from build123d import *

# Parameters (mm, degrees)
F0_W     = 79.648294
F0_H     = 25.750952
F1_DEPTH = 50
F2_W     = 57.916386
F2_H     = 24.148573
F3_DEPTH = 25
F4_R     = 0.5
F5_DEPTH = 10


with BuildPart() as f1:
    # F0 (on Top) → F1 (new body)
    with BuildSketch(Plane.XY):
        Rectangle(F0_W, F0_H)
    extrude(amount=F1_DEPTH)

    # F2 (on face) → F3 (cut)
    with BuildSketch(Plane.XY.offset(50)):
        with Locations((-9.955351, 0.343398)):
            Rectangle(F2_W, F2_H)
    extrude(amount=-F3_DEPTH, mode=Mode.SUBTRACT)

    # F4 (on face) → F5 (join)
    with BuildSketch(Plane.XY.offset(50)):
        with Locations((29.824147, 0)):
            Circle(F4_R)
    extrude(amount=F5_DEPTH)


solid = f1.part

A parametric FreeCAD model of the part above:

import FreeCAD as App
import Part
import Sketcher
from FreeCAD import Vector


def add_polygon(sketch, points):
    """Adds a closed chain of lines whose ends are joined by coincident constraints."""
    first, n = sketch.GeometryCount, len(points)
    for a, b in zip(points, points[1:] + points[:1]):
        sketch.addGeometry(Part.LineSegment(App.Vector(*a, 0), App.Vector(*b, 0)), False)
    for i in range(n):
        sketch.addConstraint(Sketcher.Constraint("Coincident", first + i, 2, first + (i + 1) % n, 1))

doc = App.newDocument("Part")
body = doc.addObject("PartDesign::Body", "Body")

# Sketch on XY plane
sketch1 = body.newObject("Sketcher::SketchObject", "Sketch")
sketch1.AttachmentSupport = (doc.getObject("XY_Plane"), [""])
sketch1.MapMode = "FlatFace"
add_polygon(sketch1, [(-39.824147, 12.875476), (-39.824147, -12.875476), (39.824147, -12.875476), (39.824147, 12.875476)])  # lines 0-3
sketch1.addConstraint(Sketcher.Constraint("Vertical", 0))
sketch1.addConstraint(Sketcher.Constraint("Horizontal", 1))
sketch1.addConstraint(Sketcher.Constraint("Vertical", 2))
sketch1.addConstraint(Sketcher.Constraint("Horizontal", 3))
sketch1.addConstraint(Sketcher.Constraint("Symmetric", 0, 2, 2, 2, -1, 1))
sketch1.addConstraint(Sketcher.Constraint("DistanceX", 1, 1, 1, 2, 79.648294))
sketch1.addConstraint(Sketcher.Constraint("DistanceY", 0, 2, 0, 1, 25.750952))
pad1 = body.newObject("PartDesign::Pad", "Pad")
pad1.Profile = sketch1
pad1.Length = 50

# Sketch on XY plane
sketch2 = body.newObject("Sketcher::SketchObject", "Sketch001")
sketch2.AttachmentSupport = (doc.getObject("XY_Plane"), [""])
sketch2.MapMode = "FlatFace"
sketch2.AttachmentOffset = App.Placement(Vector(0, 0, 50), App.Rotation())
add_polygon(sketch2, [(-38.913544, 12.417685), (-38.913544, -11.730889), (19.002842, -11.730889), (19.002842, 12.417685)])  # lines 0-3
sketch2.addConstraint(Sketcher.Constraint("Vertical", 0))
sketch2.addConstraint(Sketcher.Constraint("Horizontal", 1))
sketch2.addConstraint(Sketcher.Constraint("Vertical", 2))
sketch2.addConstraint(Sketcher.Constraint("Horizontal", 3))
sketch2.addConstraint(Sketcher.Constraint("DistanceX", 1, 1, 1, 2, 57.916386))
sketch2.addConstraint(Sketcher.Constraint("DistanceY", 0, 2, 0, 1, 24.148573))
sketch2.addConstraint(Sketcher.Constraint("DistanceY", 0, 2, -1, 1, 11.730889))
sketch2.addConstraint(Sketcher.Constraint("DistanceX", 0, 2, -1, 1, 38.913544))
pocket1 = body.newObject("PartDesign::Pocket", "Pocket")
pocket1.Profile = sketch2
pocket1.Length = 25

# Sketch on XY plane
sketch3 = body.newObject("Sketcher::SketchObject", "Sketch002")
sketch3.AttachmentSupport = (doc.getObject("XY_Plane"), [""])
sketch3.MapMode = "FlatFace"
sketch3.AttachmentOffset = App.Placement(Vector(0, 0, 50), App.Rotation())
sketch3.addGeometry(Part.Circle(Vector(29.824147, 0, 0), Vector(0, 0, 1), 0.5), False)
sketch3.addConstraint(Sketcher.Constraint("PointOnObject", 0, 3, -1))
sketch3.addConstraint(Sketcher.Constraint("Diameter", 0, 1.0))
sketch3.addConstraint(Sketcher.Constraint("DistanceX", -1, 1, 0, 3, 29.824147))
pad2 = body.newObject("PartDesign::Pad", "Pad001")
pad2.Profile = sketch3
pad2.Length = 10

doc.recompute()
